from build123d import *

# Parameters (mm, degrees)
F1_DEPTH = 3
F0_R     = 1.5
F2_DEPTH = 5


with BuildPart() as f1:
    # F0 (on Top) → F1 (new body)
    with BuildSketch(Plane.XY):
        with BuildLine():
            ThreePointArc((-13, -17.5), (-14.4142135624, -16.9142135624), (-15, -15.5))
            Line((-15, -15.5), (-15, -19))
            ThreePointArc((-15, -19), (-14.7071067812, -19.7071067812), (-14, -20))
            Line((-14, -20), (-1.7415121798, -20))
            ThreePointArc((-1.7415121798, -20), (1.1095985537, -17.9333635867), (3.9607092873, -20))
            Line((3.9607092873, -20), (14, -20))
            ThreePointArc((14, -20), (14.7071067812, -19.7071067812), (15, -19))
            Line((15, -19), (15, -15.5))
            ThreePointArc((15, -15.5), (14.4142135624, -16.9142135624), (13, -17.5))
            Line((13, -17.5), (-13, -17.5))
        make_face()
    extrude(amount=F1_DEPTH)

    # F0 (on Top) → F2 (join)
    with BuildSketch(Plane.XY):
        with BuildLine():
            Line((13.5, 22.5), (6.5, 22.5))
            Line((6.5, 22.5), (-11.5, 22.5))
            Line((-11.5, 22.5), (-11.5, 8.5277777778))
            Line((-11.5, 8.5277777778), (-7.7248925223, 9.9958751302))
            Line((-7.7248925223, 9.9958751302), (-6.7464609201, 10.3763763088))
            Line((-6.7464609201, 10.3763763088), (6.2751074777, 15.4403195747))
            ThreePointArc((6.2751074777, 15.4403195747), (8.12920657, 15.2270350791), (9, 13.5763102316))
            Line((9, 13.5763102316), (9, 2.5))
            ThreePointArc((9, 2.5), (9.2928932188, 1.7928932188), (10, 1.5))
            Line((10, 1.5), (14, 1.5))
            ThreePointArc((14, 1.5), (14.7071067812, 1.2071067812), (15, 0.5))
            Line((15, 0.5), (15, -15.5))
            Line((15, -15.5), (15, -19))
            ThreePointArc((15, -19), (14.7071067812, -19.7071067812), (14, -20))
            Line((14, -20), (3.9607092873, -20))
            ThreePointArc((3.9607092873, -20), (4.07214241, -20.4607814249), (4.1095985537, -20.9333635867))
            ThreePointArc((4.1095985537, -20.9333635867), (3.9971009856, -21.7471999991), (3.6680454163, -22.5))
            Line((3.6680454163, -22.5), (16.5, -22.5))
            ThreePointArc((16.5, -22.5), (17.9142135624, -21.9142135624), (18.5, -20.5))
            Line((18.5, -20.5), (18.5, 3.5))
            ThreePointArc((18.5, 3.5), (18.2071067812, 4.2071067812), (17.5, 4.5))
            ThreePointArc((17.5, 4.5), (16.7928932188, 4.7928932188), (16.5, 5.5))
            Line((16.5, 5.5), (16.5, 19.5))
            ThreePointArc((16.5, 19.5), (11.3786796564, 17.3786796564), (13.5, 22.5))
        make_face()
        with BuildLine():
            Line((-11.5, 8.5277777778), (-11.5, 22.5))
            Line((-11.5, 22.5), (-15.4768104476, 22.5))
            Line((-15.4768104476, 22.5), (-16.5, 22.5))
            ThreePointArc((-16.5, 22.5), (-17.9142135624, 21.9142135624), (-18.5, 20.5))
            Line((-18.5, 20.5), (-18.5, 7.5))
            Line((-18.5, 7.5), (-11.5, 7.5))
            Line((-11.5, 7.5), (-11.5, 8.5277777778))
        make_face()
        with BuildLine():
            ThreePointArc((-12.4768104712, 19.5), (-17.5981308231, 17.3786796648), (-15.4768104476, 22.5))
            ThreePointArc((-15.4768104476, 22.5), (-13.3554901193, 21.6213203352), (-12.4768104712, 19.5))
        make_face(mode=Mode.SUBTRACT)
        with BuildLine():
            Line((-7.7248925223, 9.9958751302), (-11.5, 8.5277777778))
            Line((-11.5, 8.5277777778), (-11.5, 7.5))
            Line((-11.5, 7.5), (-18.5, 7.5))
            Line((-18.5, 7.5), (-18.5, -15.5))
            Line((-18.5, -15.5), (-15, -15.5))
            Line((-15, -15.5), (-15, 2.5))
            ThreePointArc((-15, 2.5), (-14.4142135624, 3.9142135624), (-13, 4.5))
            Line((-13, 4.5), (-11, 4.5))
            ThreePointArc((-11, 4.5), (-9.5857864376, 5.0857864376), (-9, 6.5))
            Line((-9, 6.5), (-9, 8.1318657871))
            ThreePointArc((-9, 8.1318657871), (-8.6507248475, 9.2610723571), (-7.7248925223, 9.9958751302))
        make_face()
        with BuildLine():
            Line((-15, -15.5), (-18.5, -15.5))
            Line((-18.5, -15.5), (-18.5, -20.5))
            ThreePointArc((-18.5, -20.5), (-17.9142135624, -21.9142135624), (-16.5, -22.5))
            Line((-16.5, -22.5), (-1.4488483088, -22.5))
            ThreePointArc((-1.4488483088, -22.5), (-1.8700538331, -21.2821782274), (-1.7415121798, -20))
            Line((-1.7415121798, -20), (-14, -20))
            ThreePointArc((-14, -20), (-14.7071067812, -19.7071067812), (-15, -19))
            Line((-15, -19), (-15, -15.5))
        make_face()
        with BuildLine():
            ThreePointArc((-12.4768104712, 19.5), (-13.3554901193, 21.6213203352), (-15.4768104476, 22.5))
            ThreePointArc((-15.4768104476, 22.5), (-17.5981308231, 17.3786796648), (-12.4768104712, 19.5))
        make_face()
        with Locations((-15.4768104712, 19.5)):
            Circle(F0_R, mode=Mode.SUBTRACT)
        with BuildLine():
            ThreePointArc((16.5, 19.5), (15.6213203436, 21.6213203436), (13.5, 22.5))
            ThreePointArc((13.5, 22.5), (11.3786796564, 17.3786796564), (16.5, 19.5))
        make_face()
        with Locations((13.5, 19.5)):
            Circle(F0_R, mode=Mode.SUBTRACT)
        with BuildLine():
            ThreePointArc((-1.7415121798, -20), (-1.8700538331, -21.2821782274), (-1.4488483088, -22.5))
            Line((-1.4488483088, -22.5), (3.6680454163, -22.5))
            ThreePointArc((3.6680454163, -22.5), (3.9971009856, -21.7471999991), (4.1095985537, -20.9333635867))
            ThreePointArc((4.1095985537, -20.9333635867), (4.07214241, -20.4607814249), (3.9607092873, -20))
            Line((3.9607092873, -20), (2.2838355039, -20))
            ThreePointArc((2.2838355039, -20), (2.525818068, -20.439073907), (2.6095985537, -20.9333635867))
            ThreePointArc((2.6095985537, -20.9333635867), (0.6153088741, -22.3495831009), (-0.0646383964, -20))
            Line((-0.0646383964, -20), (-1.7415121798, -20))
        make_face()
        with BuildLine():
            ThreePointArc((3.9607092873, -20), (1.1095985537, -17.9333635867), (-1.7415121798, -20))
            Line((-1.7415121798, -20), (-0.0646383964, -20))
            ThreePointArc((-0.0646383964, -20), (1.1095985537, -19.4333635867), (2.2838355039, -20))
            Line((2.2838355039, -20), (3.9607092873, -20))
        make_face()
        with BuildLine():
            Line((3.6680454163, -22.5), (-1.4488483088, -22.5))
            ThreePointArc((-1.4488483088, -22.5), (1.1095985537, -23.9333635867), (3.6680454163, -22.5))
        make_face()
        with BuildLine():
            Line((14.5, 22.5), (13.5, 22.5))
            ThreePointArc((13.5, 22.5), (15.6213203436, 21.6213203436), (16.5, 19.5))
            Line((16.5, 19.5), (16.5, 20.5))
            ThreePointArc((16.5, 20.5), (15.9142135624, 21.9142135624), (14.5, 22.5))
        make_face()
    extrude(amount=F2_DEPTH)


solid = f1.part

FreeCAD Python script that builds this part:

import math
import FreeCAD as App
import Part
import Sketcher
Q = App.Units.Quantity

doc = App.newDocument("Part")
body = doc.addObject("PartDesign::Body", "Body")

# Sketch on XY plane
sketch1 = body.newObject("Sketcher::SketchObject", "Sketch")
sketch1.AttachmentSupport = (doc.getObject("XY_Plane"), [""])
sketch1.MapMode = "FlatFace"
sketch1.addGeometry(Part.ArcOfCircle(Part.Circle(App.Vector(-13, -15.5, 0), App.Vector(0, 0, 1), 2), math.radians(180), math.radians(270)), False)
sketch1.addGeometry(Part.LineSegment(App.Vector(-15, -15.5, 0), App.Vector(-15, -19, 0)), False)
sketch1.addGeometry(Part.ArcOfCircle(Part.Circle(App.Vector(-14, -19, 0), App.Vector(0, 0, 1), 1), math.radians(180), math.radians(270)), False)
sketch1.addGeometry(Part.LineSegment(App.Vector(-14, -20, 0), App.Vector(-1.7, -20, 0)), False)
sketch1.addGeometry(Part.ArcOfCircle(Part.Circle(App.Vector(1.1, -20.9, 0), App.Vector(0, 0, 1), 3), math.radians(18), math.radians(162)), False)
sketch1.addGeometry(Part.LineSegment(App.Vector(4, -20, 0), App.Vector(14, -20, 0)), False)
sketch1.addGeometry(Part.ArcOfCircle(Part.Circle(App.Vector(14, -19, 0), App.Vector(0, 0, 1), 1), math.radians(-90), math.radians(0)), False)
sketch1.addGeometry(Part.LineSegment(App.Vector(15, -19, 0), App.Vector(15, -15.5, 0)), False)
sketch1.addGeometry(Part.ArcOfCircle(Part.Circle(App.Vector(13, -15.5, 0), App.Vector(0, 0, 1), 2), math.radians(-90), math.radians(0)), False)
sketch1.addGeometry(Part.LineSegment(App.Vector(13, -17.5, 0), App.Vector(-13, -17.5, 0)), False)
sketch1.addConstraint(Sketcher.Constraint("Tangent", 0, 1, 1, 1))
sketch1.addConstraint(Sketcher.Constraint("Tangent", 1, 2, 2, 1))
sketch1.addConstraint(Sketcher.Constraint("Tangent", 2, 2, 3, 1))
sketch1.addConstraint(Sketcher.Constraint("Coincident", 3, 2, 4, 2))
sketch1.addConstraint(Sketcher.Constraint("Coincident", 4, 1, 5, 1))
sketch1.addConstraint(Sketcher.Constraint("Tangent", 5, 2, 6, 1))
sketch1.addConstraint(Sketcher.Constraint("Tangent", 6, 2, 7, 1))
sketch1.addConstraint(Sketcher.Constraint("Tangent", 7, 2, 8, 2))
sketch1.addConstraint(Sketcher.Constraint("Tangent", 8, 1, 9, 1))
sketch1.addConstraint(Sketcher.Constraint("Tangent", 9, 2, 0, 2))
sketch1.addConstraint(Sketcher.Constraint("Vertical", 1))
sketch1.addConstraint(Sketcher.Constraint("Horizontal", 3))
sketch1.addConstraint(Sketcher.Constraint("Horizontal", 5))
sketch1.addConstraint(Sketcher.Constraint("Vertical", 7))
sketch1.addConstraint(Sketcher.Constraint("Horizontal", 9))
sketch1.addConstraint(Sketcher.Constraint("Equal", 2, 6))
sketch1.addConstraint(Sketcher.Constraint("Equal", 0, 8))
sketch1.addConstraint(Sketcher.Constraint("Symmetric", 2, 3, 6, 3, -2))
sketch1.addConstraint(Sketcher.Constraint("Radius", 0, Q("2 mm")))
sketch1.addConstraint(Sketcher.Constraint("Radius", 2, Q("1 mm")))
sketch1.addConstraint(Sketcher.Constraint("Radius", 4, Q("3 mm")))
sketch1.addConstraint(Sketcher.Constraint("DistanceX", 9, 2, 9, 1, Q("26 mm")))
sketch1.addConstraint(Sketcher.Constraint("DistanceY", 1, 2, 1, 1, Q("3.5 mm")))
sketch1.addConstraint(Sketcher.Constraint("DistanceY", 2, 3, -1, 1, Q("19 mm")))
sketch1.addConstraint(Sketcher.Constraint("DistanceX", 5, 1, 5, 2, Q("10.039291 mm")))
sketch1.addConstraint(Sketcher.Constraint("DistanceX", -1, 1, 4, 3, Q("1.109599 mm")))
pad1 = body.newObject("PartDesign::Pad", "Pad")
pad1.Profile = sketch1
pad1.Length = 3

# Sketch on XY plane
sketch2 = body.newObject("Sketcher::SketchObject", "Sketch001")
sketch2.AttachmentSupport = (doc.getObject("XY_Plane"), [""])
sketch2.MapMode = "FlatFace"
sketch2.addGeometry(Part.ArcOfCircle(Part.Circle(App.Vector(-16.5, 20.5, 0), App.Vector(0, 0, 1), 2), math.radians(90), math.radians(180)), False)
sketch2.addGeometry(Part.LineSegment(App.Vector(-18.5, 20.5, 0), App.Vector(-18.5, -20.5, 0)), False)
sketch2.addGeometry(Part.ArcOfCircle(Part.Circle(App.Vector(-16.5, -20.5, 0), App.Vector(0, 0, 1), 2), math.radians(180), math.radians(270)), False)
sketch2.addGeometry(Part.LineSegment(App.Vector(-16.5, -22.5, 0), App.Vector(-1.4, -22.5, 0)), False)
sketch2.addGeometry(Part.ArcOfCircle(Part.Circle(App.Vector(1.1, -20.9, 0), App.Vector(0, 0, 1), 3), math.radians(-149), math.radians(-31)), False)
sketch2.addGeometry(Part.LineSegment(App.Vector(3.7, -22.5, 0), App.Vector(16.5, -22.5, 0)), False)
sketch2.addGeometry(Part.ArcOfCircle(Part.Circle(App.Vector(16.5, -20.5, 0), App.Vector(0, 0, 1), 2), math.radians(-90), math.radians(0)), False)
sketch2.addGeometry(Part.LineSegment(App.Vector(18.5, -20.5, 0), App.Vector(18.5, 3.5, 0)), False)
sketch2.addGeometry(Part.ArcOfCircle(Part.Circle(App.Vector(17.5, 3.5, 0), App.Vector(0, 0, 1), 1), math.radians(0), math.radians(90)), False)
sketch2.addGeometry(Part.ArcOfCircle(Part.Circle(App.Vector(17.5, 5.5, 0), App.Vector(0, 0, 1), 1), math.radians(180), math.radians(270)), False)
sketch2.addGeometry(Part.LineSegment(App.Vector(16.5, 5.5, 0), App.Vector(16.5, 20.5, 0)), False)
sketch2.addGeometry(Part.ArcOfCircle(Part.Circle(App.Vector(14.5, 20.5, 0), App.Vector(0, 0, 1), 2), math.radians(0), math.radians(90)), False)
sketch2.addGeometry(Part.LineSegment(App.Vector(14.5, 22.5, 0), App.Vector(-16.5, 22.5, 0)), False)
sketch2.addGeometry(Part.ArcOfCircle(Part.Circle(App.Vector(-14, -19, 0), App.Vector(0, 0, 1), 1), math.radians(180), math.radians(270)), False)
sketch2.addGeometry(Part.LineSegment(App.Vector(-15, -19, 0), App.Vector(-15, 2.5, 0)), False)
sketch2.addGeometry(Part.ArcOfCircle(Part.Circle(App.Vector(-13, 2.5, 0), App.Vector(0, 0, 1), 2), math.radians(90), math.radians(180)), False)
sketch2.addGeometry(Part.LineSegment(App.Vector(-13, 4.5, 0), App.Vector(-11, 4.5, 0)), False)
sketch2.addGeometry(Part.ArcOfCircle(Part.Circle(App.Vector(-11, 6.5, 0), App.Vector(0, 0, 1), 2), math.radians(-90), math.radians(0)), False)
sketch2.addGeometry(Part.LineSegment(App.Vector(-9, 6.5, 0), App.Vector(-9, 8.1, 0)), False)
sketch2.addGeometry(Part.ArcOfCircle(Part.Circle(App.Vector(-7, 8.1, 0), App.Vector(0, 0, 1), 2), math.radians(111), math.radians(180)), False)
sketch2.addGeometry(Part.LineSegment(App.Vector(-7.7, 10, 0), App.Vector(-6.7, 10.4, 0)), False)
sketch2.addGeometry(Part.LineSegment(App.Vector(-6.7, 10.4, 0), App.Vector(6.3, 15.4, 0)), False)
sketch2.addGeometry(Part.ArcOfCircle(Part.Circle(App.Vector(7, 13.6, 0), App.Vector(0, 0, 1), 2), math.radians(0), math.radians(111)), False)
sketch2.addGeometry(Part.LineSegment(App.Vector(9, 13.6, 0), App.Vector(9, 2.5, 0)), False)
sketch2.addGeometry(Part.ArcOfCircle(Part.Circle(App.Vector(10, 2.5, 0), App.Vector(0, 0, 1), 1), math.radians(180), math.radians(270)), False)
sketch2.addGeometry(Part.LineSegment(App.Vector(10, 1.5, 0), App.Vector(14, 1.5, 0)), False)
sketch2.addGeometry(Part.ArcOfCircle(Part.Circle(App.Vector(14, 0.5, 0), App.Vector(0, 0, 1), 1), math.radians(0), math.radians(90)), False)
sketch2.addGeometry(Part.LineSegment(App.Vector(15, 0.5, 0), App.Vector(15, -19, 0)), False)
sketch2.addGeometry(Part.ArcOfCircle(Part.Circle(App.Vector(14, -19, 0), App.Vector(0, 0, 1), 1), math.radians(-90), math.radians(0)), False)
sketch2.addGeometry(Part.LineSegment(App.Vector(14, -20, 0), App.Vector(4, -20, 0)), False)
sketch2.addGeometry(Part.ArcOfCircle(Part.Circle(App.Vector(1.1, -20.9, 0), App.Vector(0, 0, 1), 3), math.radians(18), math.radians(162)), False)
sketch2.addGeometry(Part.LineSegment(App.Vector(-1.7, -20, 0), App.Vector(-14, -20, 0)), False)
sketch2.addGeometry(Part.ArcOfCircle(Part.Circle(App.Vector(1.1, -20.9, 0), App.Vector(0, 0, 1), 1.5), math.radians(0), math.radians(38)), False)
sketch2.addGeometry(Part.ArcOfCircle(Part.Circle(App.Vector(1.1, -20.9, 0), App.Vector(0, 0, 1), 1.5), math.radians(142), math.radians(360)), False)
sketch2.addGeometry(Part.ArcOfCircle(Part.Circle(App.Vector(1.1, -20.9, 0), App.Vector(0, 0, 1), 1.5), math.radians(38), math.radians(142)), False)
sketch2.addGeometry(Part.Circle(App.Vector(-15.5, 19.5, 0), App.Vector(0, 0, 1), 1.5), False)
sketch2.addGeometry(Part.Circle(App.Vector(13.5, 19.5, 0), App.Vector(0, 0, 1), 1.5), False)
sketch2.addConstraint(Sketcher.Constraint("Tangent", 0, 2, 1, 1))
sketch2.addConstraint(Sketcher.Constraint("Tangent", 1, 2, 2, 1))
sketch2.addConstraint(Sketcher.Constraint("Tangent", 2, 2, 3, 1))
sketch2.addConstraint(Sketcher.Constraint("Coincident", 3, 2, 4, 1))
sketch2.addConstraint(Sketcher.Constraint("Coincident", 4, 2, 5, 1))
sketch2.addConstraint(Sketcher.Constraint("Tangent", 5, 2, 6, 1))
sketch2.addConstraint(Sketcher.Constraint("Tangent", 6, 2, 7, 1))
sketch2.addConstraint(Sketcher.Constraint("Tangent", 7, 2, 8, 1))
sketch2.addConstraint(Sketcher.Constraint("Tangent", 8, 2, 9, 2))
sketch2.addConstraint(Sketcher.Constraint("Tangent", 9, 1, 10, 1))
sketch2.addConstraint(Sketcher.Constraint("Tangent", 10, 2, 11, 1))
sketch2.addConstraint(Sketcher.Constraint("Tangent", 11, 2, 12, 1))
sketch2.addConstraint(Sketcher.Constraint("Tangent", 12, 2, 0, 1))
sketch2.addConstraint(Sketcher.Constraint("Tangent", 13, 1, 14, 1))
sketch2.addConstraint(Sketcher.Constraint("Tangent", 14, 2, 15, 2))
sketch2.addConstraint(Sketcher.Constraint("Tangent", 15, 1, 16, 1))
sketch2.addConstraint(Sketcher.Constraint("Tangent", 16, 2, 17, 1))
sketch2.addConstraint(Sketcher.Constraint("Tangent", 17, 2, 18, 1))
sketch2.addConstraint(Sketcher.Constraint("Tangent", 18, 2, 19, 2))
sketch2.addConstraint(Sketcher.Constraint("Tangent", 19, 1, 20, 1))
sketch2.addConstraint(Sketcher.Constraint("Coincident", 20, 2, 21, 1))
sketch2.addConstraint(Sketcher.Constraint("Tangent", 21, 2, 22, 2))
sketch2.addConstraint(Sketcher.Constraint("Tangent", 22, 1, 23, 1))
sketch2.addConstraint(Sketcher.Constraint("Tangent", 23, 2, 24, 1))
sketch2.addConstraint(Sketcher.Constraint("Tangent", 24, 2, 25, 1))
sketch2.addConstraint(Sketcher.Constraint("Tangent", 25, 2, 26, 2))
sketch2.addConstraint(Sketcher.Constraint("Tangent", 26, 1, 27, 1))
sketch2.addConstraint(Sketcher.Constraint("Tangent", 27, 2, 28, 2))
sketch2.addConstraint(Sketcher.Constraint("Tangent", 28, 1, 29, 1))
sketch2.addConstraint(Sketcher.Constraint("Coincident", 29, 2, 30, 1))
sketch2.addConstraint(Sketcher.Constraint("Coincident", 30, 2, 31, 1))
sketch2.addConstraint(Sketcher.Constraint("Tangent", 31, 2, 13, 2))
sketch2.addConstraint(Sketcher.Constraint("Tangent", 32, 1, 33, 2))
sketch2.addConstraint(Sketcher.Constraint("Tangent", 33, 1, 34, 2))
sketch2.addConstraint(Sketcher.Constraint("Tangent", 34, 1, 32, 2))
sketch2.addConstraint(Sketcher.Constraint("Vertical", 1))
sketch2.addConstraint(Sketcher.Constraint("Horizontal", 3))
sketch2.addConstraint(Sketcher.Constraint("Horizontal", 5))
sketch2.addConstraint(Sketcher.Constraint("Vertical", 7))
sketch2.addConstraint(Sketcher.Constraint("Vertical", 10))
sketch2.addConstraint(Sketcher.Constraint("Horizontal", 12))
sketch2.addConstraint(Sketcher.Constraint("Vertical", 14))
sketch2.addConstraint(Sketcher.Constraint("Horizontal", 16))
sketch2.addConstraint(Sketcher.Constraint("Vertical", 18))
sketch2.addConstraint(Sketcher.Constraint("Vertical", 23))
sketch2.addConstraint(Sketcher.Constraint("Horizontal", 25))
sketch2.addConstraint(Sketcher.Constraint("Vertical", 27))
sketch2.addConstraint(Sketcher.Constraint("Horizontal", 29))
sketch2.addConstraint(Sketcher.Constraint("Horizontal", 31))
sketch2.addConstraint(Sketcher.Constraint("Coincident", 30, 3, 4, 3))
sketch2.addConstraint(Sketcher.Constraint("Coincident", 32, 3, 4, 3))
sketch2.addConstraint(Sketcher.Constraint("Equal", 0, 2))
sketch2.addConstraint(Sketcher.Constraint("Equal", 2, 6))
sketch2.addConstraint(Sketcher.Constraint("Equal", 8, 9))
sketch2.addConstraint(Sketcher.Constraint("Equal", 6, 11))
sketch2.addConstraint(Sketcher.Constraint("Equal", 9, 13))
sketch2.addConstraint(Sketcher.Constraint("Equal", 11, 15))
sketch2.addConstraint(Sketcher.Constraint("Equal", 15, 17))
sketch2.addConstraint(Sketcher.Constraint("Equal", 17, 19))
sketch2.addConstraint(Sketcher.Constraint("Equal", 19, 22))
sketch2.addConstraint(Sketcher.Constraint("Equal", 13, 24))
sketch2.addConstraint(Sketcher.Constraint("Equal", 24, 26))
sketch2.addConstraint(Sketcher.Constraint("Equal", 26, 28))
sketch2.addConstraint(Sketcher.Constraint("Equal", 4, 30))
sketch2.addConstraint(Sketcher.Constraint("Equal", 34, 35))
sketch2.addConstraint(Sketcher.Constraint("Equal", 35, 36))
sketch2.addConstraint(Sketcher.Constraint("Symmetric", 0, 3, 6, 3, -1, 1))
sketch2.addConstraint(Sketcher.Constraint("Symmetric", 13, 3, 28, 3, -2))
sketch2.addConstraint(Sketcher.Constraint("Parallel", 20, 21))
sketch2.addConstraint(Sketcher.Constraint("Horizontal", 2, 3, 6, 3))
sketch2.addConstraint(Sketcher.Constraint("Horizontal", 15, 3, 24, 3))
sketch2.addConstraint(Sketcher.Constraint("Horizontal", 35, 3, 36, 3))
sketch2.addConstraint(Sketcher.Constraint("Horizontal", 8, 2, 15, 1))
sketch2.addConstraint(Sketcher.Constraint("Horizontal", 34, 3, 32, 1))
sketch2.addConstraint(Sketcher.Constraint("Horizontal", 31, 2, 33, 1))
sketch2.addConstraint(Sketcher.Constraint("Horizontal", 33, 1, 34, 1))
sketch2.addConstraint(Sketcher.Constraint("Vertical", 8, 3, 9, 3))
sketch2.addConstraint(Sketcher.Constraint("Vertical", 5, 2, 9, 1))
sketch2.addConstraint(Sketcher.Constraint("Diameter", 35, Q("3 mm")))
sketch2.addConstraint(Sketcher.Constraint("Radius", 0, Q("2 mm")))
sketch2.addConstraint(Sketcher.Constraint("Radius", 4, Q("3 mm")))
sketch2.addConstraint(Sketcher.Constraint("DistanceX", 12, 2, 12, 1, Q("31 mm")))
sketch2.addConstraint(Sketcher.Constraint("DistanceX", 16, 1, 16, 2, Q("2 mm")))
sketch2.addConstraint(Sketcher.Constraint("DistanceX", 25, 1, 25, 2, Q("4 mm")))
sketch2.addConstraint(Sketcher.Constraint("DistanceY", 1, 2, 1, 1, Q("41 mm")))
sketch2.addConstraint(Sketcher.Constraint("DistanceY", 7, 1, 7, 2, Q("24 mm")))
sketch2.addConstraint(Sketcher.Constraint("DistanceY", 14, 1, 14, 2, Q("21.5 mm")))
sketch2.addConstraint(Sketcher.Constraint("DistanceX", 13, 3, -1, 1, Q("14 mm")))
sketch2.addConstraint(Sketcher.Constraint("DistanceY", 35, 3, 0, 3, Q("1 mm")))
sketch2.addConstraint(Sketcher.Constraint("DistanceX", 36, 3, 11, 3, Q("1 mm")))
sketch2.addConstraint(Sketcher.Constraint("DistanceX", 3, 1, 3, 2, Q("15.051152 mm")))
sketch2.addConstraint(Sketcher.Constraint("DistanceX", 29, 2, 29, 1, Q("10.039291 mm")))
sketch2.addConstraint(Sketcher.Constraint("DistanceY", 23, 2, 23, 1, Q("11.07631 mm")))
sketch2.addConstraint(Sketcher.Constraint("DistanceY", 19, 1, 20, 2, Q("0.380501 mm")))
sketch2.addConstraint(Sketcher.Constraint("Distance", 21, Q("13.97157 mm")))
sketch2.addConstraint(Sketcher.Constraint("DistanceX", 35, 3, -1, 1, Q("15.47681 mm")))
pad2 = body.newObject("PartDesign::Pad", "Pad001")
pad2.Profile = sketch2
pad2.Length = 5

doc.recompute()
